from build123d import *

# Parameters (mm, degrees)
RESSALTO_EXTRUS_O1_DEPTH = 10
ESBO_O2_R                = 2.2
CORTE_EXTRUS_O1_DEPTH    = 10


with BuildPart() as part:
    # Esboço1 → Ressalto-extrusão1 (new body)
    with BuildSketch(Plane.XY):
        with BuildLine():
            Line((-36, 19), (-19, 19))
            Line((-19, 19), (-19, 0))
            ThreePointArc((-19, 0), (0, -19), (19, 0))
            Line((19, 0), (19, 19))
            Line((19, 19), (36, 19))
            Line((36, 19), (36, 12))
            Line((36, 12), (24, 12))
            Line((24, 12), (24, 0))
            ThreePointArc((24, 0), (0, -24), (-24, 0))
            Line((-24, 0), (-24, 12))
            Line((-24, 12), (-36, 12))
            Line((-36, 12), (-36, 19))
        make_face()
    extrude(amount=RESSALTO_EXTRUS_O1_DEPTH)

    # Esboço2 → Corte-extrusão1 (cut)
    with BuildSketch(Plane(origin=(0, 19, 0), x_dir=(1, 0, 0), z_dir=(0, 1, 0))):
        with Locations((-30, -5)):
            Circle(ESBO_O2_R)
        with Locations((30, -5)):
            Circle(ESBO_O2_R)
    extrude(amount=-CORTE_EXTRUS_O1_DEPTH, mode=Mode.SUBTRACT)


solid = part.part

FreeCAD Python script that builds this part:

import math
import FreeCAD as App
import Part
import Sketcher

doc = App.newDocument("Part")
body = doc.addObject("PartDesign::Body", "Body")

# Sketch on XY plane
sketch1 = doc.addObject("Sketcher::SketchObject", "Sketch")
body.addObject(sketch1)
sketch1.AttachmentSupport = (doc.XY_Plane, [""])
sketch1.MapMode = "FlatFace"
sketch1.addGeometry(Part.LineSegment(App.Vector(-19, 19, 0), App.Vector(-36, 19, 0)), False)
sketch1.addGeometry(Part.LineSegment(App.Vector(-36, 19, 0), App.Vector(-36, 12, 0)), False)
sketch1.addGeometry(Part.LineSegment(App.Vector(-36, 12, 0), App.Vector(-24, 12, 0)), False)
sketch1.addGeometry(Part.LineSegment(App.Vector(-24, 12, 0), App.Vector(-24, 0, 0)), False)
sketch1.addGeometry(Part.ArcOfCircle(Part.Circle(App.Vector(0, 0, 0), App.Vector(0, 0, 1), 24), math.radians(180), math.radians(360)), False)
sketch1.addGeometry(Part.LineSegment(App.Vector(24, 0, 0), App.Vector(24, 12, 0)), False)
sketch1.addGeometry(Part.LineSegment(App.Vector(24, 12, 0), App.Vector(36, 12, 0)), False)
sketch1.addGeometry(Part.LineSegment(App.Vector(36, 12, 0), App.Vector(36, 19, 0)), False)
sketch1.addGeometry(Part.LineSegment(App.Vector(36, 19, 0), App.Vector(19, 19, 0)), False)
sketch1.addGeometry(Part.LineSegment(App.Vector(19, 19, 0), App.Vector(19, 0, 0)), False)
sketch1.addGeometry(Part.ArcOfCircle(Part.Circle(App.Vector(0, 0, 0), App.Vector(0, 0, 1), 19), math.radians(180), math.radians(360)), False)
sketch1.addGeometry(Part.LineSegment(App.Vector(-19, 0, 0), App.Vector(-19, 19, 0)), False)
sketch1.addConstraint(Sketcher.Constraint("Coincident", 0, 2, 1, 1))
sketch1.addConstraint(Sketcher.Constraint("Coincident", 1, 2, 2, 1))
sketch1.addConstraint(Sketcher.Constraint("Coincident", 2, 2, 3, 1))
sketch1.addConstraint(Sketcher.Constraint("Tangent", 3, 2, 4, 1))
sketch1.addConstraint(Sketcher.Constraint("Tangent", 4, 2, 5, 1))
sketch1.addConstraint(Sketcher.Constraint("Coincident", 5, 2, 6, 1))
sketch1.addConstraint(Sketcher.Constraint("Coincident", 6, 2, 7, 1))
sketch1.addConstraint(Sketcher.Constraint("Coincident", 7, 2, 8, 1))
sketch1.addConstraint(Sketcher.Constraint("Coincident", 8, 2, 9, 1))
sketch1.addConstraint(Sketcher.Constraint("Tangent", 9, 2, 10, 2))
sketch1.addConstraint(Sketcher.Constraint("Tangent", 10, 1, 11, 1))
sketch1.addConstraint(Sketcher.Constraint("Coincident", 11, 2, 0, 1))
sketch1.addConstraint(Sketcher.Constraint("Horizontal", 0))
sketch1.addConstraint(Sketcher.Constraint("Vertical", 1))
sketch1.addConstraint(Sketcher.Constraint("Horizontal", 2))
sketch1.addConstraint(Sketcher.Constraint("Vertical", 3))
sketch1.addConstraint(Sketcher.Constraint("Vertical", 5))
sketch1.addConstraint(Sketcher.Constraint("Horizontal", 6))
sketch1.addConstraint(Sketcher.Constraint("Vertical", 7))
sketch1.addConstraint(Sketcher.Constraint("Horizontal", 8))
sketch1.addConstraint(Sketcher.Constraint("Vertical", 9))
sketch1.addConstraint(Sketcher.Constraint("Vertical", 11))
sketch1.addConstraint(Sketcher.Constraint("Coincident", 4, 3, -1, 1))
sketch1.addConstraint(Sketcher.Constraint("Coincident", 10, 3, -1, 1))
sketch1.addConstraint(Sketcher.Constraint("Symmetric", 1, 2, 6, 2, -2))
sketch1.addConstraint(Sketcher.Constraint("Horizontal", 0, 2, 7, 2))
sketch1.addConstraint(Sketcher.Constraint("Equal", 6, 3))
sketch1.addConstraint(Sketcher.Constraint("Radius", 4, 24.0))
sketch1.addConstraint(Sketcher.Constraint("Radius", 10, 19.0))
sketch1.addConstraint(Sketcher.Constraint("DistanceX", 0, 2, 0, 1, 17.0))
sketch1.addConstraint(Sketcher.Constraint("DistanceY", 1, 2, 1, 1, 7.0))
pad1 = doc.addObject("PartDesign::Pad", "Pad")
body.addObject(pad1)
pad1.Profile = sketch1
pad1.Length = 10

# Sketch on XZ plane
sketch2 = doc.addObject("Sketcher::SketchObject", "Sketch001")
body.addObject(sketch2)
sketch2.AttachmentSupport = (doc.XZ_Plane, [""])
sketch2.MapMode = "FlatFace"
sketch2.AttachmentOffset = App.Placement(App.Vector(0, 0, -19), App.Rotation())
sketch2.addGeometry(Part.Circle(App.Vector(-30, 5, 0), App.Vector(0, 0, 1), 2.2), False)
sketch2.addGeometry(Part.Circle(App.Vector(30, 5, 0), App.Vector(0, 0, 1), 2.2), False)
sketch2.addConstraint(Sketcher.Constraint("Equal", 0, 1))
sketch2.addConstraint(Sketcher.Constraint("Symmetric", 0, 3, 1, 3, -2))
sketch2.addConstraint(Sketcher.Constraint("Diameter", 0, 4.4))
sketch2.addConstraint(Sketcher.Constraint("DistanceX", 0, 3, -1, 1, 30.0))
sketch2.addConstraint(Sketcher.Constraint("DistanceY", -1, 1, 0, 3, 5.0))
pocket1 = doc.addObject("PartDesign::Pocket", "Pocket")
body.addObject(pocket1)
pocket1.Profile = sketch2
pocket1.Length = 10
pocket1.Reversed = True

doc.recompute()
